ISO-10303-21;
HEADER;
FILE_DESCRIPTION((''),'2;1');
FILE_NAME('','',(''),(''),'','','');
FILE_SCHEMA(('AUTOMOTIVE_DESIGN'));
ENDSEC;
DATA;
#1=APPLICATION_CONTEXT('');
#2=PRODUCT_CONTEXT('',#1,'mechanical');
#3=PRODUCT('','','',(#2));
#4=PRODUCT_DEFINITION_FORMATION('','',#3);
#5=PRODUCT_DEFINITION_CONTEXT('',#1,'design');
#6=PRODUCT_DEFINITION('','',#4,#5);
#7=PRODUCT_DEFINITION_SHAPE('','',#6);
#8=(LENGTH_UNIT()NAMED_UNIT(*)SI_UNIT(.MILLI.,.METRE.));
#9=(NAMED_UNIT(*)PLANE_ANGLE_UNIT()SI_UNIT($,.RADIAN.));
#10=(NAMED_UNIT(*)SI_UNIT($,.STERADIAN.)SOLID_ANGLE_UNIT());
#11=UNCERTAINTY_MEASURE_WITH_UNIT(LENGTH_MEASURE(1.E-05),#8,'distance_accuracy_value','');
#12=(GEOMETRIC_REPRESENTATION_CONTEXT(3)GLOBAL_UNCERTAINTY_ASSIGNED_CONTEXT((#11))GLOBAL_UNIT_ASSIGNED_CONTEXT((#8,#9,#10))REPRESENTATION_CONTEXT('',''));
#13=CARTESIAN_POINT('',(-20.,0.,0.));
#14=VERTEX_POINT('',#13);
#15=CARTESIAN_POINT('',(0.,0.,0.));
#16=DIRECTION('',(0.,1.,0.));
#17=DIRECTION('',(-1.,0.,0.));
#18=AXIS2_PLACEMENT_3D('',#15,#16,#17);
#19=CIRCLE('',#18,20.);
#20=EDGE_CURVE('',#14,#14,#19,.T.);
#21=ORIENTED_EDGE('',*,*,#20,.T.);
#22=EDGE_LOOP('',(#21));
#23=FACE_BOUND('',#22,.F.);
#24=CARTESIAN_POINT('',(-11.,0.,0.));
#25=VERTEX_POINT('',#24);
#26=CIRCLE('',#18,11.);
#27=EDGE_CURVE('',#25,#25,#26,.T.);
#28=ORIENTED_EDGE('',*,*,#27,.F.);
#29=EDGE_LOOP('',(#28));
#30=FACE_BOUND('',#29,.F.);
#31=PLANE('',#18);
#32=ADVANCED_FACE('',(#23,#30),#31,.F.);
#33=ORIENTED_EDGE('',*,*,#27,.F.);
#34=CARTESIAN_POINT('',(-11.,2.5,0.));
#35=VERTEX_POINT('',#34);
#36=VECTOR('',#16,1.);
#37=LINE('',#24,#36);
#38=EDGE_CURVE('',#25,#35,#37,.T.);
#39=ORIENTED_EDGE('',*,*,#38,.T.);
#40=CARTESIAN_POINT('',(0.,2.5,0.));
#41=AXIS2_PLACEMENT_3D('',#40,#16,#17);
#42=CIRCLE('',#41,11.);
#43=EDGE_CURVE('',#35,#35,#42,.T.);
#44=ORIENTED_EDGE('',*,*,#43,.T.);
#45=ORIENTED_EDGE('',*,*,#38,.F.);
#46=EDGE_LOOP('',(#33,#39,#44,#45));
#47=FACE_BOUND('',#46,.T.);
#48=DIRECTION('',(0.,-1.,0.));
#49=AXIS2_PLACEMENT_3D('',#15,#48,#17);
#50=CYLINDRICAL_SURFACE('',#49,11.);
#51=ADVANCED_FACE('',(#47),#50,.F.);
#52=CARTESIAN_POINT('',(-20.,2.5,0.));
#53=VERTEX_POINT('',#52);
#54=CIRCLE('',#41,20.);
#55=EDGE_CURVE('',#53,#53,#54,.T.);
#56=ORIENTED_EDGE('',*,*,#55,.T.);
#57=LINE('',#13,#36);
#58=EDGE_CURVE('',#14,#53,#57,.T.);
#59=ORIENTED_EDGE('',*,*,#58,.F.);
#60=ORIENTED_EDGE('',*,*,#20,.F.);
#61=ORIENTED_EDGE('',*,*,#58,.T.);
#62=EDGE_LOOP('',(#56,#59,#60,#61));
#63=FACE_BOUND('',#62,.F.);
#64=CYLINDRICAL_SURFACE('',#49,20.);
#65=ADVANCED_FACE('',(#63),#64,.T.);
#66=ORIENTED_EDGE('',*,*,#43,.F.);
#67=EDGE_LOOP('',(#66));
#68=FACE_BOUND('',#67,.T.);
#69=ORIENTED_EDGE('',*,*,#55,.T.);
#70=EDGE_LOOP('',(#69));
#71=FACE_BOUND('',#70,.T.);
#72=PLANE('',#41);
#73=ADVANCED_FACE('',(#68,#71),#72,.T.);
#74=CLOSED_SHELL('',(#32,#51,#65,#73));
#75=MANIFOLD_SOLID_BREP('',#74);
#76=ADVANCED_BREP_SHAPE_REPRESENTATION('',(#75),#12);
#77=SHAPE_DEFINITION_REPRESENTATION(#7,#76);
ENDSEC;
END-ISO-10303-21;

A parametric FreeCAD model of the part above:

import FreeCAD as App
import Part
import Sketcher
from FreeCAD import Vector
Q = App.Units.Quantity

doc = App.newDocument("Part")
body = doc.addObject("PartDesign::Body", "Body")

sketch1 = body.newObject("Sketcher::SketchObject", "Sketch")
sketch1.AttachmentSupport = (doc.getObject("XZ_Plane"), [""])
sketch1.MapMode = "FlatFace"
sketch1.addGeometry([
    Part.Circle(Vector(0, 0, 0), Vector(0, 0, 1), 20),
    Part.Circle(Vector(0, 0, 0), Vector(0, 0, 1), 11),
], False)
sketch1.addConstraint([
    Sketcher.Constraint("Coincident", 0, 3, -1, 1),
    Sketcher.Constraint("Coincident", 1, 3, -1, 1),
    Sketcher.Constraint("Diameter", 0, Q("40 mm")),
    Sketcher.Constraint("Diameter", 1, Q("22 mm")),
])
pad1 = body.newObject("PartDesign::Pad", "Pad")
pad1.Profile = sketch1
pad1.Length = 2.5
pad1.Reversed = True

doc.recompute()
